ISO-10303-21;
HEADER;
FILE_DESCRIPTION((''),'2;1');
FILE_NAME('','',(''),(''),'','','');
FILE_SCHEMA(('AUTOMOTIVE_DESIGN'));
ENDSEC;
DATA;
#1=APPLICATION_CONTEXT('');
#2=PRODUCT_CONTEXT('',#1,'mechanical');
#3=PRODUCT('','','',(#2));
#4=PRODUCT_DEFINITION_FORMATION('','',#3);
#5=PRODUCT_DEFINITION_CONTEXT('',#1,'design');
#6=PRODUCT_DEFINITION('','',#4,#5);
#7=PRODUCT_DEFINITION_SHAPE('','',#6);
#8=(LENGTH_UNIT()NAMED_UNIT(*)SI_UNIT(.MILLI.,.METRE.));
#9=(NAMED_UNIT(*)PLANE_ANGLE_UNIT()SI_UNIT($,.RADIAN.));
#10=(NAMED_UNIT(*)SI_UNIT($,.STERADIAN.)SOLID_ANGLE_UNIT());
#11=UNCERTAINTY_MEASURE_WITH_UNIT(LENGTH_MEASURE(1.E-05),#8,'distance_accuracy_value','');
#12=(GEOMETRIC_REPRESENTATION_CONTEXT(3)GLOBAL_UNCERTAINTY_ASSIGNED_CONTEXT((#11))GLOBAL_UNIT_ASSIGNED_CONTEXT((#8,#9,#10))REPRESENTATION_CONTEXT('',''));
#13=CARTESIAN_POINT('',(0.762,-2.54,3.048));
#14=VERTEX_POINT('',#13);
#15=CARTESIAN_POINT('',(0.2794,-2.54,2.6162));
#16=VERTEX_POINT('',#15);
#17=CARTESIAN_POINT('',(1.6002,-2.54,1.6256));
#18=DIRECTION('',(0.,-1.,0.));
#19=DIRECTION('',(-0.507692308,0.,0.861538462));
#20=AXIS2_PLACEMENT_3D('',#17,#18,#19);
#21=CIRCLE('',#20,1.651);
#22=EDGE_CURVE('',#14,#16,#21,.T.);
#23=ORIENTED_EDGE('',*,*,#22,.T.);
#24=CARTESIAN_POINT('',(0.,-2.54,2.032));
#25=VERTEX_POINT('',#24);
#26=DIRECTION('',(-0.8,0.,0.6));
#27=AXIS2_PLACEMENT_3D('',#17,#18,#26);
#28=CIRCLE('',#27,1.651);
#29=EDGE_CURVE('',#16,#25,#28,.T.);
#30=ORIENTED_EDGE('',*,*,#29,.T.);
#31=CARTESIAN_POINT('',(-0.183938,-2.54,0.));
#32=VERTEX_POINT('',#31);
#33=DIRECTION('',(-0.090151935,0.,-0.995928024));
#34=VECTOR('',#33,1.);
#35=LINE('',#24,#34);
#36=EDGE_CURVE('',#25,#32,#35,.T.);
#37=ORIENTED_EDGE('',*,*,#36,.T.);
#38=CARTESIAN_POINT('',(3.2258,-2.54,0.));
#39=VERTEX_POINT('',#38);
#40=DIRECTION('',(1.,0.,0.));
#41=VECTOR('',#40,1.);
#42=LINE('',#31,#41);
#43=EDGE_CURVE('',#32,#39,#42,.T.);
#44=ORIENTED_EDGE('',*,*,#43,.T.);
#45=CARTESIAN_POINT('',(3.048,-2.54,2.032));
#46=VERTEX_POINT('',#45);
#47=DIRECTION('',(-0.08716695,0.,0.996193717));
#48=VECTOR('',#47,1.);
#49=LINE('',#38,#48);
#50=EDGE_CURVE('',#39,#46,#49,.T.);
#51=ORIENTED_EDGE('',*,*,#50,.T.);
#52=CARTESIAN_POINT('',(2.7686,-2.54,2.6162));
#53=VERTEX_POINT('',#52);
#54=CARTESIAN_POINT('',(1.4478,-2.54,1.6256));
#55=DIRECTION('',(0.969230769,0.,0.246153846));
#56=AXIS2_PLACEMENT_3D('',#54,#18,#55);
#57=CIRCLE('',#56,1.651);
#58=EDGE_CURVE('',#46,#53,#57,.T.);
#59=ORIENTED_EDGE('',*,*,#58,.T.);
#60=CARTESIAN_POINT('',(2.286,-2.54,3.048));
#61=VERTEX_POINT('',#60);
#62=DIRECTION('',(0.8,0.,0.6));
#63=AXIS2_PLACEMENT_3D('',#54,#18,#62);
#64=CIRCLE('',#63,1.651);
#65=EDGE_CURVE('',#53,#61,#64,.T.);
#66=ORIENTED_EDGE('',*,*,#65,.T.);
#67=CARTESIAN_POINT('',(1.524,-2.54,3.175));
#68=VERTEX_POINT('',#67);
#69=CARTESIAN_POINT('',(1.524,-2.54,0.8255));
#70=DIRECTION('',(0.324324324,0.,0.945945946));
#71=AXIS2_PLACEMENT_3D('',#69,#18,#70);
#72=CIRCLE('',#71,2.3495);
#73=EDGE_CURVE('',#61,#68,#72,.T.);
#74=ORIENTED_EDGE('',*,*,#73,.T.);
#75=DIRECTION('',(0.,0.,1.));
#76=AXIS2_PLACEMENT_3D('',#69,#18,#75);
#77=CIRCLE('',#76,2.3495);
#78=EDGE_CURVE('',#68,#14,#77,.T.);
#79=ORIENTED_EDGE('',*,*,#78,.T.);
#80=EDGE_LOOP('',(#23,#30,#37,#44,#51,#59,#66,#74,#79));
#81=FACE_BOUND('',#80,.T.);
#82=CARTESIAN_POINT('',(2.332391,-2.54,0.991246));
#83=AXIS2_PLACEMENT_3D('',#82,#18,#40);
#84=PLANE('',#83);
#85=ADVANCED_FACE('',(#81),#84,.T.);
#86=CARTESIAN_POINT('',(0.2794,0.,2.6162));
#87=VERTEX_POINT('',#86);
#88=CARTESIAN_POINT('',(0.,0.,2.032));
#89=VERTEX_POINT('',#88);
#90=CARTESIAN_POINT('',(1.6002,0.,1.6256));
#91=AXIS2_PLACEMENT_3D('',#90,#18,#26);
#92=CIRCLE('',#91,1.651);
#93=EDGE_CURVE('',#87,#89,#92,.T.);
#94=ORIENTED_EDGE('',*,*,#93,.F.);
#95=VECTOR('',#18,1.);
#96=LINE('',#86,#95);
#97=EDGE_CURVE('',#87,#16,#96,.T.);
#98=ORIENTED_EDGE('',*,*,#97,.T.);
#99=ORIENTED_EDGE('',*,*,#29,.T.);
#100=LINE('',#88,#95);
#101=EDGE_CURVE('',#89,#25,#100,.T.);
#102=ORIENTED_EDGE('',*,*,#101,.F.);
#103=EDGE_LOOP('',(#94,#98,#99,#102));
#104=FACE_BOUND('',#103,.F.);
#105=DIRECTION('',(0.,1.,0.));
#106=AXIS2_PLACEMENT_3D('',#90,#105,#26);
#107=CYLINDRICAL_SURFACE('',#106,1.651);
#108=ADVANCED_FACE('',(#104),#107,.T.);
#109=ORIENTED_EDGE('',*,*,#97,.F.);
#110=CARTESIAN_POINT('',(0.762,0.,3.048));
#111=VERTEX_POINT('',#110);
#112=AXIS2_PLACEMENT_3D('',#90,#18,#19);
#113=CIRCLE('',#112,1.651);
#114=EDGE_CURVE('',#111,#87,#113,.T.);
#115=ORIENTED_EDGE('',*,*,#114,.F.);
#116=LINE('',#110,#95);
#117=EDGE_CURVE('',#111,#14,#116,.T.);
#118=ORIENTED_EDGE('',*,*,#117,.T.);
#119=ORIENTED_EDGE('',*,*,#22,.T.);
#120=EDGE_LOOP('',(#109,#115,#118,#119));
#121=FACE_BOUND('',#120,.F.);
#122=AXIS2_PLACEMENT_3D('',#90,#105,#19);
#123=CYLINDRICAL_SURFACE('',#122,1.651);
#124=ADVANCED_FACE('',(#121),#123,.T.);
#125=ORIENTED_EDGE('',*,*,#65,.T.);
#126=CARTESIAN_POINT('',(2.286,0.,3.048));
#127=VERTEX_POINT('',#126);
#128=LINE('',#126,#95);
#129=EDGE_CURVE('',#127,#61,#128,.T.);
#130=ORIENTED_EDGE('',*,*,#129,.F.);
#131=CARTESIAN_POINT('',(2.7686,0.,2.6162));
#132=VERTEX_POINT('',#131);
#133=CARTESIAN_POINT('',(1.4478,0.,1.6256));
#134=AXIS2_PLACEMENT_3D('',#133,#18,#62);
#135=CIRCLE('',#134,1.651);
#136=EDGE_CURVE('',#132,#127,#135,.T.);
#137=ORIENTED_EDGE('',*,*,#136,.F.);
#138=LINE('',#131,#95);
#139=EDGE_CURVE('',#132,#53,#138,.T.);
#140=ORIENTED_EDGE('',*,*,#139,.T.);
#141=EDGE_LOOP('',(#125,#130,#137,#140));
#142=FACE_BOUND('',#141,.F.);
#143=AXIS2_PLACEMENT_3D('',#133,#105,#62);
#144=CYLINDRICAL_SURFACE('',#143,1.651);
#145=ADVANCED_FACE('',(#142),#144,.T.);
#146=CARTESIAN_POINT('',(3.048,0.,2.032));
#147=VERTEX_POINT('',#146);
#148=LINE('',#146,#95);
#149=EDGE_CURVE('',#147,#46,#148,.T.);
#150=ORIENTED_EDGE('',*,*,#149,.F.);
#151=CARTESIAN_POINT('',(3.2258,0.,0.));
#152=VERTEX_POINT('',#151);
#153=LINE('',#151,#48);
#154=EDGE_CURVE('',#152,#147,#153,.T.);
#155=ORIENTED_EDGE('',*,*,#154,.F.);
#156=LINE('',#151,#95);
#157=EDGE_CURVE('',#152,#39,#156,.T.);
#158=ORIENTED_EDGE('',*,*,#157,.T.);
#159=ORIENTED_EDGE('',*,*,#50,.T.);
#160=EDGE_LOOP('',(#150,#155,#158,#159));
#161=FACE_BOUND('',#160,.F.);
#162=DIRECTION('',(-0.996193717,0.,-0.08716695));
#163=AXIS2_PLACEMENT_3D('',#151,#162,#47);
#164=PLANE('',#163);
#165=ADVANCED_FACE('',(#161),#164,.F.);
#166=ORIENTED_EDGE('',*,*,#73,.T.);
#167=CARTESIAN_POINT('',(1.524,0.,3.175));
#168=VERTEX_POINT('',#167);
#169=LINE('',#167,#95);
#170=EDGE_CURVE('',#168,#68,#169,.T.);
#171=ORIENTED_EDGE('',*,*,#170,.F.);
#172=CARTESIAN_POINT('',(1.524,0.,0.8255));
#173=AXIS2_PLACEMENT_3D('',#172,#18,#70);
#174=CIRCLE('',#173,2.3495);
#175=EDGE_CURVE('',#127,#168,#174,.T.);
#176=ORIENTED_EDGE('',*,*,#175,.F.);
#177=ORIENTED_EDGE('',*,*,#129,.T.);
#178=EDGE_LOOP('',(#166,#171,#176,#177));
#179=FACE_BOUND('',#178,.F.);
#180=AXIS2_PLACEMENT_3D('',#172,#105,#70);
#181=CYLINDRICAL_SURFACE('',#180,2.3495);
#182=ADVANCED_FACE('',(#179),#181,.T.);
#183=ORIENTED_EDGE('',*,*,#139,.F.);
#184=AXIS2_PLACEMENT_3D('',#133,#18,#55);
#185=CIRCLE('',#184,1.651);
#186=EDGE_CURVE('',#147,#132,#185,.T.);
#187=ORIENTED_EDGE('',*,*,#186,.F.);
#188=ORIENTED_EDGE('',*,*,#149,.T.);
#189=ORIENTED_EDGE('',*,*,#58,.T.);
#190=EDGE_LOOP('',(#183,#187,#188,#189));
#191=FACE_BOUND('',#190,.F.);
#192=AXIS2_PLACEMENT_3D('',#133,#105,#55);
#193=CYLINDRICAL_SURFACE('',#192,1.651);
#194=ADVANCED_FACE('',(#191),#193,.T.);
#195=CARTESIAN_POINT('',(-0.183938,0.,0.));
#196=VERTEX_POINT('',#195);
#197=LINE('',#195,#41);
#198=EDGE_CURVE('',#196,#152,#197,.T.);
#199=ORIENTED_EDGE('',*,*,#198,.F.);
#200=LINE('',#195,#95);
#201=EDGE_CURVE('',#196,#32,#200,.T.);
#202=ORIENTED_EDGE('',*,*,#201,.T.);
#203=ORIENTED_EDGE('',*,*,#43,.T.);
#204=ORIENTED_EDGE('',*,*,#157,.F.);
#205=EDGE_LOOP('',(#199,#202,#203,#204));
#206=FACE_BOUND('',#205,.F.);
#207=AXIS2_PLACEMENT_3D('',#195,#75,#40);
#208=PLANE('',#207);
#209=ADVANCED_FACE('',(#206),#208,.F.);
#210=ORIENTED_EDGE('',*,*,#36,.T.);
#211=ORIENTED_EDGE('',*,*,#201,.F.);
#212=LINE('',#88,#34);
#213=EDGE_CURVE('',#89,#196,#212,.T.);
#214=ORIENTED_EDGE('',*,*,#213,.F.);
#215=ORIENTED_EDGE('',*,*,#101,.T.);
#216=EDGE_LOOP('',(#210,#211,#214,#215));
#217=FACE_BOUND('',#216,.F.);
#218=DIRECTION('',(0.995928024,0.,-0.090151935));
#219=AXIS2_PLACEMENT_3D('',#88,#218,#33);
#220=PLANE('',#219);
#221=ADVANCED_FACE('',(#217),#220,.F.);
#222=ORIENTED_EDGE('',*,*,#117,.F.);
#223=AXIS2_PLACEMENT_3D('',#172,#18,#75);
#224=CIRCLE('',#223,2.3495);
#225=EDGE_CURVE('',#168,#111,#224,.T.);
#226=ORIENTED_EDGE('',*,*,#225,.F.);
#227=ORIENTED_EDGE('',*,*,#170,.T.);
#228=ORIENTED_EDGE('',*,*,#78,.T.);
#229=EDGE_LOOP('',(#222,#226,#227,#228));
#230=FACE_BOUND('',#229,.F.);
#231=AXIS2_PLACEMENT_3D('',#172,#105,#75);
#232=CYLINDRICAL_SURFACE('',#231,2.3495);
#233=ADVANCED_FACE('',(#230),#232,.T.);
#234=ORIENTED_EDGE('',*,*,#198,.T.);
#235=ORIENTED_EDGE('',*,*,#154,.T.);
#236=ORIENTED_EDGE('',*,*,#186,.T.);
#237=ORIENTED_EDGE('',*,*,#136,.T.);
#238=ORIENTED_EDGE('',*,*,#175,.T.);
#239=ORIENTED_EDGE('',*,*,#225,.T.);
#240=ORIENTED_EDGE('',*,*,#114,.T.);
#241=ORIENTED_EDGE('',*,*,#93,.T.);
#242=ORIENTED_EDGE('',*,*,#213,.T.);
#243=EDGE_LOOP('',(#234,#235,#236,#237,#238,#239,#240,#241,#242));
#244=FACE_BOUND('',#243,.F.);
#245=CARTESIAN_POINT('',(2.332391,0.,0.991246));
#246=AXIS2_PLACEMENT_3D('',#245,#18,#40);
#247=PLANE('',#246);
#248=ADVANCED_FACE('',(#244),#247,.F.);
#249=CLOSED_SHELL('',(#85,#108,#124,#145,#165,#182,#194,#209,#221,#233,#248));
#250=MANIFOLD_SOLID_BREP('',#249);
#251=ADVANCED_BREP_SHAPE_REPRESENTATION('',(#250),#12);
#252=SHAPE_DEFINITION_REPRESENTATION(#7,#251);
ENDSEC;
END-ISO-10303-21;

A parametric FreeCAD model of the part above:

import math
import FreeCAD as App
import Part
import Sketcher
Q = App.Units.Quantity

doc = App.newDocument("Part")
body = doc.addObject("PartDesign::Body", "Body")

# Sketch on XZ plane
sketch1 = doc.addObject("Sketcher::SketchObject", "Sketch")
body.addObject(sketch1)
sketch1.AttachmentSupport = (doc.XZ_Plane, [""])
sketch1.MapMode = "FlatFace"
sketch1.addGeometry([
    Part.LineSegment(App.Vector(3.2, 0, 0), App.Vector(3, 2, 0)),  # 0
    Part.ArcOfCircle(Part.Circle(App.Vector(1.4, 1.6, 0), App.Vector(0, 0, 1), 1.7), math.radians(14), math.radians(37)),  # 1
    Part.ArcOfCircle(Part.Circle(App.Vector(1.4, 1.6, 0), App.Vector(0, 0, 1), 1.7), math.radians(37), math.radians(59)),  # 2
    Part.ArcOfCircle(Part.Circle(App.Vector(1.5, 0.8, 0), App.Vector(0, 0, 1), 2.3), math.radians(71.08), math.radians(90)),  # 3
    Part.ArcOfCircle(Part.Circle(App.Vector(1.5, 0.8, 0), App.Vector(0, 0, 1), 2.3), math.radians(90), math.radians(108.92)),  # 4
    Part.ArcOfCircle(Part.Circle(App.Vector(1.6, 1.6, 0), App.Vector(0, 0, 1), 1.7), math.radians(121), math.radians(143)),  # 5
    Part.ArcOfCircle(Part.Circle(App.Vector(1.6, 1.6, 0), App.Vector(0, 0, 1), 1.7), math.radians(143), math.radians(166)),  # 6
    Part.LineSegment(App.Vector(0, 2, 0), App.Vector(-0.2, 0, 0)),  # 7
    Part.LineSegment(App.Vector(-0.2, 0, 0), App.Vector(3.2, 0, 0)),  # 8
], False)
sketch1.addConstraint([
    Sketcher.Constraint("Coincident", 0, 2, 1, 1),
    Sketcher.Constraint("Tangent", 1, 2, 2, 1),
    Sketcher.Constraint("Coincident", 2, 2, 3, 1),
    Sketcher.Constraint("Tangent", 3, 2, 4, 1),
    Sketcher.Constraint("Coincident", 4, 2, 5, 1),
    Sketcher.Constraint("Tangent", 5, 2, 6, 1),
    Sketcher.Constraint("Coincident", 6, 2, 7, 1),
    Sketcher.Constraint("Coincident", 7, 2, 8, 1),
    Sketcher.Constraint("Coincident", 8, 2, 0, 1),
    Sketcher.Constraint("Horizontal", 8),
    Sketcher.Constraint("Equal", 1, 2),
    Sketcher.Constraint("Equal", 3, 4),
    Sketcher.Constraint("Equal", 2, 5),
    Sketcher.Constraint("Equal", 5, 6),
    Sketcher.Constraint("PointOnObject", 6, 2, -2),
    Sketcher.Constraint("PointOnObject", 7, 2, -1),
    Sketcher.Constraint("Horizontal", 2, 3, 5, 3),
    Sketcher.Constraint("Horizontal", 2, 2, 4, 2),
    Sketcher.Constraint("Horizontal", 1, 2, 5, 2),
    Sketcher.Constraint("Horizontal", 0, 2, 6, 2),
    Sketcher.Constraint("Vertical", 4, 3, 3, 2),
    Sketcher.Constraint("Radius", 1, Q("0.065 in")),
    Sketcher.Constraint("Radius", 3, Q("0.0925 in")),
    Sketcher.Constraint("DistanceX", -1, 1, 3, 3, Q("0.06 in")),
    Sketcher.Constraint("DistanceY", -1, 1, 0, 2, Q("0.08 in")),
    Sketcher.Constraint("DistanceX", -1, 1, 2, 2, Q("0.09 in")),
    Sketcher.Constraint("DistanceY", -1, 1, 2, 2, Q("0.12 in")),
    Sketcher.Constraint("DistanceX", -1, 1, 1, 2, Q("0.109 in")),
    Sketcher.Constraint("DistanceX", -1, 1, 8, 2, Q("0.127 in")),
    Sketcher.Constraint("Distance", 7, Q("2.040308 mm")),
])
pad1 = doc.addObject("PartDesign::Pad", "Pad")
body.addObject(pad1)
pad1.Profile = sketch1
pad1.Length = Q("0.1 in")

doc.recompute()
